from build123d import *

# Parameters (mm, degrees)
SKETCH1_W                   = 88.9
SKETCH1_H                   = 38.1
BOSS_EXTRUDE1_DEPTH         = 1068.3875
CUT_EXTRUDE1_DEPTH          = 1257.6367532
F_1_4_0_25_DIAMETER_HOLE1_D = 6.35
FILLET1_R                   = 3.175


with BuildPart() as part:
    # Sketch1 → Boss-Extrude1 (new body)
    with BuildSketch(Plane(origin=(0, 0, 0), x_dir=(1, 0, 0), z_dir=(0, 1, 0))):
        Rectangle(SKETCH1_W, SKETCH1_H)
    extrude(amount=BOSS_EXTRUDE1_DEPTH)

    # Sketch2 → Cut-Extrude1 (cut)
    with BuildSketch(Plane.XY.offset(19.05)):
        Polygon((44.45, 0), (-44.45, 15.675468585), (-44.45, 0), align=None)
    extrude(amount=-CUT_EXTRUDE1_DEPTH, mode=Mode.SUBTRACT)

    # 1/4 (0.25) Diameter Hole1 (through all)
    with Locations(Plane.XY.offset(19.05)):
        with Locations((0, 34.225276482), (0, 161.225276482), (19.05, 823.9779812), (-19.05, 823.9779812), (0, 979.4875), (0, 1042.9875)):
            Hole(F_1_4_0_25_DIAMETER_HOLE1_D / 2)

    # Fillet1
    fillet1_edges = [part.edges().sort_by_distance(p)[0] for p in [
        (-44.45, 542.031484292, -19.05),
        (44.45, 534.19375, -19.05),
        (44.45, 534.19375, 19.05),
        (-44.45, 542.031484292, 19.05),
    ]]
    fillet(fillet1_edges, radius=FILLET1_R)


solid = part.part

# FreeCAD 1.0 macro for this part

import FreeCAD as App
import Part
import Sketcher

V = App.Vector
Q = App.Units.Quantity


def edges_at(feature, points):
    """Names of the edges that pass closest to the given points."""
    edges = feature.Shape.Edges
    near = lambda p: min(range(len(edges)), key=lambda i: edges[i].distToShape(Part.Vertex(*p))[0])
    return sorted({f"Edge{near(p) + 1}" for p in points})

doc = App.newDocument("Part")
body = doc.addObject("PartDesign::Body", "Body")

# Sketch on XZ plane
sketch1 = body.newObject("Sketcher::SketchObject", "Sketch")
sketch1.AttachmentSupport = (doc.getObject("XZ_Plane"), [""])
sketch1.MapMode = "FlatFace"
sketch1.addGeometry([
    Part.LineSegment(V(-44, -19, 0), V(-44, 19, 0)),
    Part.LineSegment(V(-44, 19, 0), V(44, 19, 0)),
    Part.LineSegment(V(44, 19, 0), V(44, -19, 0)),
    Part.LineSegment(V(44, -19, 0), V(-44, -19, 0)),
], False)
sketch1.addConstraint([
    Sketcher.Constraint("Coincident", 0, 2, 1, 1),
    Sketcher.Constraint("Coincident", 1, 2, 2, 1),
    Sketcher.Constraint("Coincident", 2, 2, 3, 1),
    Sketcher.Constraint("Coincident", 3, 2, 0, 1),
    Sketcher.Constraint("Vertical", 0),
    Sketcher.Constraint("Horizontal", 1),
    Sketcher.Constraint("Vertical", 2),
    Sketcher.Constraint("Horizontal", 3),
    Sketcher.Constraint("Symmetric", 0, 2, 2, 2, -1, 1),
    Sketcher.Constraint("DistanceX", 1, 1, 1, 2, Q("3.5 in")),
    Sketcher.Constraint("DistanceY", 0, 1, 0, 2, Q("1.5 in")),
])
pad1 = body.newObject("PartDesign::Pad", "Pad")
pad1.Profile = sketch1
pad1.Length = Q("42.0625 in")
pad1.Reversed = True

# Sketch on XY plane
sketch2 = body.newObject("Sketcher::SketchObject", "Sketch001")
sketch2.AttachmentSupport = (doc.getObject("XY_Plane"), [""])
sketch2.MapMode = "FlatFace"
sketch2.AttachmentOffset = App.Placement(V(0, 0, 0.75 * 25.4), App.Rotation())
sketch2.addGeometry([
    Part.LineSegment(V(44, 0, 0), V(-44, 16, 0)),
    Part.LineSegment(V(-44, 16, 0), V(-44, 0, 0)),
    Part.LineSegment(V(-44, 0, 0), V(44, 0, 0)),
], False)
sketch2.addConstraint([
    Sketcher.Constraint("Coincident", 0, 2, 1, 1),
    Sketcher.Constraint("Coincident", 1, 2, 2, 1),
    Sketcher.Constraint("Coincident", 2, 2, 0, 1),
    Sketcher.Constraint("Vertical", 1),
    Sketcher.Constraint("Horizontal", 2),
    Sketcher.Constraint("Symmetric", 1, 2, 2, 2, -1, 1),
    Sketcher.Constraint("DistanceX", 2, 1, 2, 2, Q("3.5 in")),
    Sketcher.Constraint("Angle", 0, Q("170 deg")),
])
pocket1 = body.newObject("PartDesign::Pocket", "Pocket")
pocket1.Profile = sketch2
pocket1.Length = 1257.636753

# Sketch on XY plane
sketch3 = body.newObject("Sketcher::SketchObject", "Sketch002")
sketch3.AttachmentSupport = (doc.getObject("XY_Plane"), [""])
sketch3.MapMode = "FlatFace"
sketch3.AttachmentOffset = App.Placement(V(0, 0, 0.75 * 25.4), App.Rotation())
sketch3.addGeometry([
    Part.Circle(V(0, 34.2, 0), V(0, 0, 1), 3.2),  # 0
    Part.Circle(V(0, 161.2, 0), V(0, 0, 1), 3.2),  # 1
    Part.Circle(V(19.1, 824, 0), V(0, 0, 1), 3.2),  # 2
    Part.Circle(V(-19.1, 824, 0), V(0, 0, 1), 3.2),  # 3
    Part.Circle(V(0, 979.5, 0), V(0, 0, 1), 3.2),  # 4
    Part.Circle(V(0, 1043, 0), V(0, 0, 1), 3.2),  # 5
], False)
sketch3.addConstraint([
    Sketcher.Constraint("Equal", 0, 1),
    Sketcher.Constraint("Equal", 1, 2),
    Sketcher.Constraint("Equal", 2, 3),
    Sketcher.Constraint("Equal", 3, 4),
    Sketcher.Constraint("Equal", 4, 5),
    Sketcher.Constraint("Symmetric", 2, 3, 3, 3, -2),
    Sketcher.Constraint("PointOnObject", 0, 3, -2),
    Sketcher.Constraint("PointOnObject", 1, 3, -2),
    Sketcher.Constraint("PointOnObject", 4, 3, -2),
    Sketcher.Constraint("PointOnObject", 5, 3, -2),
    Sketcher.Constraint("Diameter", 0, Q("0.25 in")),
    Sketcher.Constraint("DistanceY", 0, 3, 1, 3, Q("5 in")),
    Sketcher.Constraint("DistanceX", 3, 3, 2, 3, Q("1.5 in")),
    Sketcher.Constraint("DistanceY", 4, 3, 5, 3, Q("2.5 in")),
    Sketcher.Constraint("DistanceY", -1, 1, 4, 3, Q("38.5625 in")),
    Sketcher.Constraint("DistanceY", -1, 1, 2, 3, Q("823.977981 mm")),
    Sketcher.Constraint("DistanceY", -1, 1, 0, 3, Q("34.225276 mm")),
])
doc.recompute()
hole = body.newObject("PartDesign::Hole", "Hole")
hole.Profile = sketch3
hole.ThreadType = "None"
hole.Diameter = Q("0.25 in")
hole.DepthType = "ThroughAll"
doc.recompute()

fillet = body.newObject("PartDesign::Fillet", "Fillet")
fillet.Base = (hole, edges_at(hole, [
    (-44.45, 542.031, -19.05),
    (44.45, 534.194, -19.05),
    (44.45, 534.194, 19.05),
    (-44.45, 542.031, 19.05),
]))
fillet.Radius = Q("0.125 in")

doc.recompute()
